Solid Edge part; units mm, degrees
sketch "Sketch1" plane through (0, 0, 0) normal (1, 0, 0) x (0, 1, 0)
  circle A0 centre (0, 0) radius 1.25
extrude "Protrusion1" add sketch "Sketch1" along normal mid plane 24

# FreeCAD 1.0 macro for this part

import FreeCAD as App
import Part
import Sketcher

doc = App.newDocument("Part")
body = doc.addObject("PartDesign::Body", "Body")

sketch1 = body.newObject("Sketcher::SketchObject", "Sketch")
sketch1.AttachmentSupport = (doc.getObject("YZ_Plane"), [""])
sketch1.MapMode = "FlatFace"
sketch1.addGeometry(Part.Circle(App.Vector(0, 0, 0), App.Vector(0, 0, 1), 1.25), False)
sketch1.addConstraint(Sketcher.Constraint("Coincident", 0, 3, -1, 1))
sketch1.addConstraint(Sketcher.Constraint("Diameter", 0, 2.5))
pad1 = body.newObject("PartDesign::Pad", "Pad")
pad1.Profile = sketch1
pad1.Length = 24
pad1.Midplane = True

doc.recompute()
